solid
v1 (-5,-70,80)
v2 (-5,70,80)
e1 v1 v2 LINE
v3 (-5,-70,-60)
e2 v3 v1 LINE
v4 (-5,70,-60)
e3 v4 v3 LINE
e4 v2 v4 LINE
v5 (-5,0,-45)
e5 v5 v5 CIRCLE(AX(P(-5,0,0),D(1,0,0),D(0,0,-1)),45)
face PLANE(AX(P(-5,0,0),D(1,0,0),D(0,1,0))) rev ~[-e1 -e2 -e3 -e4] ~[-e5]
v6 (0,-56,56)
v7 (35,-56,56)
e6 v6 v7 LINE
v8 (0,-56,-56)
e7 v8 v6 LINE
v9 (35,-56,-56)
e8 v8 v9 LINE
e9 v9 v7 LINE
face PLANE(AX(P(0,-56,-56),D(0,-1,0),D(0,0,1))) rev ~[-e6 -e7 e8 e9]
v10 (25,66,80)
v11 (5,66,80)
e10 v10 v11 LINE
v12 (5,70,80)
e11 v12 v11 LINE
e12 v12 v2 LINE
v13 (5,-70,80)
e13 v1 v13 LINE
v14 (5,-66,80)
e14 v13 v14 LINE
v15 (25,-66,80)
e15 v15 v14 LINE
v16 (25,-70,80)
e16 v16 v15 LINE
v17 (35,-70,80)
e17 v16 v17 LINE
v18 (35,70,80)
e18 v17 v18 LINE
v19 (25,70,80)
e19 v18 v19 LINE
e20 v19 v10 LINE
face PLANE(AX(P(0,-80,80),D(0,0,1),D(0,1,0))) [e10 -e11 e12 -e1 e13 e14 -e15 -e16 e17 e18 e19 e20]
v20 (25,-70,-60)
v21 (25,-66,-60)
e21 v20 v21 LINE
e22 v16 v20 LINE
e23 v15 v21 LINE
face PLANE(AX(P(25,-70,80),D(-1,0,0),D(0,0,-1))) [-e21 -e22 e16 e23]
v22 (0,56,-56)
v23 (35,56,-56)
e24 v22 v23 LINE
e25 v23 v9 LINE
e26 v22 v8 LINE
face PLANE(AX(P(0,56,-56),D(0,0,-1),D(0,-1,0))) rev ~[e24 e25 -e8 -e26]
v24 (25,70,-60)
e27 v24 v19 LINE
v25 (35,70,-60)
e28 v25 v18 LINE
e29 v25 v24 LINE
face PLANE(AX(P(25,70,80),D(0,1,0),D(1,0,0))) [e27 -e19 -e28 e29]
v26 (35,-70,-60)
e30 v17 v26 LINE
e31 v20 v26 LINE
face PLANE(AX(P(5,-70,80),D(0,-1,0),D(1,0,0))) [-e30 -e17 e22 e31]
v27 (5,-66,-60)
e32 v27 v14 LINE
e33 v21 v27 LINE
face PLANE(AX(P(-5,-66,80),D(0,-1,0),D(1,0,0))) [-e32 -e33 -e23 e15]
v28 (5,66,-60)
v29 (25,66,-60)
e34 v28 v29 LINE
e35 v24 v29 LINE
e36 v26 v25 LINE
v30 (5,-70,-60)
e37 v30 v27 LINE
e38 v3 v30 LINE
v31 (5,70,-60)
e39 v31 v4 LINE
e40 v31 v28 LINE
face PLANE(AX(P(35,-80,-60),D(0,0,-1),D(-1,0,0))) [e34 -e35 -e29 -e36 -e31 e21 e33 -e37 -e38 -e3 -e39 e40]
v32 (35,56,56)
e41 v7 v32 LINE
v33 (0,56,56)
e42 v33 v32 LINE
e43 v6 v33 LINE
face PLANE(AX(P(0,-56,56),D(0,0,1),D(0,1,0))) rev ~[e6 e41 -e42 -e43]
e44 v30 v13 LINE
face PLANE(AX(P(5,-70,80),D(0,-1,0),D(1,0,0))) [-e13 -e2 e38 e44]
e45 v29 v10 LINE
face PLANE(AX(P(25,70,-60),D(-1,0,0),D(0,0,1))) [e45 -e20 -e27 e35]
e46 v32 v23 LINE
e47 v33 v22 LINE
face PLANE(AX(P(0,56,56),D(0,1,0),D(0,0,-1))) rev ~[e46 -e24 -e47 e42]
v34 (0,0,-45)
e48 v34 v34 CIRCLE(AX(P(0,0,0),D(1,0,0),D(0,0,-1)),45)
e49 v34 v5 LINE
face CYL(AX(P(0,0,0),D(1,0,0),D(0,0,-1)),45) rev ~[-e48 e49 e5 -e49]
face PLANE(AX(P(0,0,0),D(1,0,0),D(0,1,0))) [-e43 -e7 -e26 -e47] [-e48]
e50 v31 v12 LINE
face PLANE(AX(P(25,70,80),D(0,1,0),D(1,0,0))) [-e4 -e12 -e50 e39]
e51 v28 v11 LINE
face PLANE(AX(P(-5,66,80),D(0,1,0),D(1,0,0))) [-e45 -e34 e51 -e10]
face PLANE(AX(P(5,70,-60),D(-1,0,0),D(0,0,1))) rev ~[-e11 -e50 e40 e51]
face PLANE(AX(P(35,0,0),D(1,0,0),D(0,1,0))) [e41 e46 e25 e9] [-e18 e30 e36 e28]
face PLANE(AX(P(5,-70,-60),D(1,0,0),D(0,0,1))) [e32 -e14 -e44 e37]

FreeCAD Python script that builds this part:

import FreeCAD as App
import Part
import Sketcher

V = App.Vector

doc = App.newDocument("Part")
params = doc.addObject("Spreadsheet::Sheet", "Params")
for row, (alias, value) in enumerate([
    ("sketch1_width", "160 mm"),
    ("sketch1_width2", "112 mm"),
    ("pad1_length", "35 mm"),
    ("sketch2_width", "160 mm"),
    ("pad2_length", "5 mm"),
    ("sketch3_diameter", "90 mm"),
    ("sketch4_width", "20 mm"),
    ("sketch4_height", "10 mm"),
    ("sketch5_width", "40 mm"),
    ("sketch5_height", "160 mm"),
    ("pocket3_length", "20 mm"),
    ("sketch6_width", "40 mm"),
    ("sketch6_height", "140 mm"),
    ("pocket4_length", "10 mm"),
    ("sketch7_width", "40 mm"),
    ("sketch7_height", "140 mm"),
    ("pocket5_length", "10 mm"),
    ("sketch8_width", "20 mm"),
    ("sketch8_height", "140 mm"),
    ("pocket6_length", "4 mm"),
    ("sketch9_width", "20 mm"),
    ("sketch9_height", "140 mm"),
    ("pocket7_length", "4 mm"),
], start=1):
    params.set(f"A{row}", alias)
    params.set(f"B{row}", "=" + value)
    params.setAlias(f"B{row}", alias)

body = doc.addObject("PartDesign::Body", "Body")

sketch1 = body.newObject("Sketcher::SketchObject", "Sketch")
sketch1.AttachmentSupport = (doc.getObject("YZ_Plane"), [""])
sketch1.MapMode = "FlatFace"
sketch1.addGeometry(Part.LineSegment(V(80, 80, 0), V(-80, 80, 0)), False)
sketch1.addGeometry(Part.LineSegment(V(-80, 80, 0), V(-80, -80, 0)), False)
sketch1.addGeometry(Part.LineSegment(V(-80, -80, 0), V(80, -80, 0)), False)
sketch1.addGeometry(Part.LineSegment(V(80, -80, 0), V(80, 80, 0)), False)
sketch1.addGeometry(Part.LineSegment(V(-56, -56, 0), V(-56, 56, 0)), False)
sketch1.addGeometry(Part.LineSegment(V(-56, 56, 0), V(56, 56, 0)), False)
sketch1.addGeometry(Part.LineSegment(V(56, 56, 0), V(56, -56, 0)), False)
sketch1.addGeometry(Part.LineSegment(V(56, -56, 0), V(-56, -56, 0)), False)
sketch1.addConstraint(Sketcher.Constraint("Coincident", 0, 2, 1, 1))
sketch1.addConstraint(Sketcher.Constraint("Coincident", 1, 2, 2, 1))
sketch1.addConstraint(Sketcher.Constraint("Coincident", 2, 2, 3, 1))
sketch1.addConstraint(Sketcher.Constraint("Coincident", 3, 2, 0, 1))
sketch1.addConstraint(Sketcher.Constraint("Coincident", 4, 2, 5, 1))
sketch1.addConstraint(Sketcher.Constraint("Coincident", 5, 2, 6, 1))
sketch1.addConstraint(Sketcher.Constraint("Coincident", 6, 2, 7, 1))
sketch1.addConstraint(Sketcher.Constraint("Coincident", 7, 2, 4, 1))
sketch1.addConstraint(Sketcher.Constraint("Horizontal", 0))
sketch1.addConstraint(Sketcher.Constraint("Vertical", 1))
sketch1.addConstraint(Sketcher.Constraint("Horizontal", 2))
sketch1.addConstraint(Sketcher.Constraint("Vertical", 3))
sketch1.addConstraint(Sketcher.Constraint("Vertical", 4))
sketch1.addConstraint(Sketcher.Constraint("Horizontal", 5))
sketch1.addConstraint(Sketcher.Constraint("Vertical", 6))
sketch1.addConstraint(Sketcher.Constraint("Horizontal", 7))
sketch1.addConstraint(Sketcher.Constraint("Symmetric", 0, 2, 2, 2, -1, 1))
sketch1.addConstraint(Sketcher.Constraint("Symmetric", 4, 2, 6, 2, -1, 1))
sketch1.addConstraint(Sketcher.Constraint("Equal", 2, 1))
sketch1.addConstraint(Sketcher.Constraint("Equal", 7, 4))
sketch1.addConstraint(Sketcher.Constraint("DistanceX", 0, 2, 0, 1, 160.0))
sketch1.addConstraint(Sketcher.Constraint("DistanceX", 5, 1, 5, 2, 112.0))
sketch1.setExpression("Constraints[20]", "Params.sketch1_width")
sketch1.setExpression("Constraints[21]", "Params.sketch1_width2")
pad1 = body.newObject("PartDesign::Pad", "Pad")
pad1.Profile = sketch1
pad1.setExpression("Length", "Params.pad1_length")

sketch2 = body.newObject("Sketcher::SketchObject", "Sketch001")
sketch2.AttachmentSupport = (doc.getObject("YZ_Plane"), [""])
sketch2.MapMode = "FlatFace"
sketch2.addGeometry(Part.LineSegment(V(80, 80, 0), V(-80, 80, 0)), False)
sketch2.addGeometry(Part.LineSegment(V(-80, 80, 0), V(-80, -80, 0)), False)
sketch2.addGeometry(Part.LineSegment(V(-80, -80, 0), V(80, -80, 0)), False)
sketch2.addGeometry(Part.LineSegment(V(80, -80, 0), V(80, 80, 0)), False)
sketch2.addConstraint(Sketcher.Constraint("Coincident", 0, 2, 1, 1))
sketch2.addConstraint(Sketcher.Constraint("Coincident", 1, 2, 2, 1))
sketch2.addConstraint(Sketcher.Constraint("Coincident", 2, 2, 3, 1))
sketch2.addConstraint(Sketcher.Constraint("Coincident", 3, 2, 0, 1))
sketch2.addConstraint(Sketcher.Constraint("Horizontal", 0))
sketch2.addConstraint(Sketcher.Constraint("Vertical", 1))
sketch2.addConstraint(Sketcher.Constraint("Horizontal", 2))
sketch2.addConstraint(Sketcher.Constraint("Vertical", 3))
sketch2.addConstraint(Sketcher.Constraint("Symmetric", 0, 2, 2, 2, -1, 1))
sketch2.addConstraint(Sketcher.Constraint("Equal", 2, 1))
sketch2.addConstraint(Sketcher.Constraint("DistanceX", 0, 2, 0, 1, 160.0))
sketch2.setExpression("Constraints[10]", "Params.sketch2_width")
pad2 = body.newObject("PartDesign::Pad", "Pad001")
pad2.Profile = sketch2
pad2.setExpression("Length", "Params.pad2_length")
pad2.Reversed = True

sketch3 = body.newObject("Sketcher::SketchObject", "Sketch002")
sketch3.AttachmentSupport = (doc.getObject("YZ_Plane"), [""])
sketch3.MapMode = "FlatFace"
sketch3.addGeometry(Part.Circle(V(0, 0, 0), V(0, 0, 1), 45), False)
sketch3.addConstraint(Sketcher.Constraint("Coincident", 0, 3, -1, 1))
sketch3.addConstraint(Sketcher.Constraint("Diameter", 0, 90.0))
sketch3.setExpression("Constraints[1]", "Params.sketch3_diameter")
pocket1 = body.newObject("PartDesign::Pocket", "Pocket")
pocket1.Profile = sketch3
pocket1.Type = "ThroughAll"

sketch4 = body.newObject("Sketcher::SketchObject", "Sketch003")
sketch4.AttachmentSupport = (doc.getObject("XY_Plane"), [""])
sketch4.MapMode = "FlatFace"
sketch4.AttachmentOffset = App.Placement(V(0, 0, 80), App.Rotation())
sketch4.addGeometry(Part.LineSegment(V(25, 70, 0), V(25, 80, 0)), False)
sketch4.addGeometry(Part.LineSegment(V(25, 80, 0), V(5, 80, 0)), False)
sketch4.addGeometry(Part.LineSegment(V(5, 80, 0), V(5, 70, 0)), False)
sketch4.addGeometry(Part.LineSegment(V(5, 70, 0), V(25, 70, 0)), False)
sketch4.addGeometry(Part.LineSegment(V(5, -70, 0), V(5, -80, 0)), False)
sketch4.addGeometry(Part.LineSegment(V(5, -80, 0), V(25, -80, 0)), False)
sketch4.addGeometry(Part.LineSegment(V(25, -80, 0), V(25, -70, 0)), False)
sketch4.addGeometry(Part.LineSegment(V(25, -70, 0), V(5, -70, 0)), False)
sketch4.addConstraint(Sketcher.Constraint("Coincident", 0, 2, 1, 1))
sketch4.addConstraint(Sketcher.Constraint("Coincident", 1, 2, 2, 1))
sketch4.addConstraint(Sketcher.Constraint("Coincident", 2, 2, 3, 1))
sketch4.addConstraint(Sketcher.Constraint("Coincident", 3, 2, 0, 1))
sketch4.addConstraint(Sketcher.Constraint("Coincident", 4, 2, 5, 1))
sketch4.addConstraint(Sketcher.Constraint("Coincident", 5, 2, 6, 1))
sketch4.addConstraint(Sketcher.Constraint("Coincident", 6, 2, 7, 1))
sketch4.addConstraint(Sketcher.Constraint("Coincident", 7, 2, 4, 1))
sketch4.addConstraint(Sketcher.Constraint("Vertical", 0))
sketch4.addConstraint(Sketcher.Constraint("Horizontal", 1))
sketch4.addConstraint(Sketcher.Constraint("Vertical", 2))
sketch4.addConstraint(Sketcher.Constraint("Horizontal", 3))
sketch4.addConstraint(Sketcher.Constraint("Vertical", 4))
sketch4.addConstraint(Sketcher.Constraint("Horizontal", 5))
sketch4.addConstraint(Sketcher.Constraint("Vertical", 6))
sketch4.addConstraint(Sketcher.Constraint("Horizontal", 7))
sketch4.addConstraint(Sketcher.Constraint("Symmetric", 1, 2, 4, 2, -1))
sketch4.addConstraint(Sketcher.Constraint("Symmetric", 3, 2, 6, 2, -1))
sketch4.addConstraint(Sketcher.Constraint("DistanceX", 1, 2, 1, 1, 20.0))
sketch4.addConstraint(Sketcher.Constraint("DistanceY", 0, 1, 0, 2, 10.0))
sketch4.addConstraint(Sketcher.Constraint("DistanceX", -1, 1, 0, 2, 25.0))
sketch4.addConstraint(Sketcher.Constraint("DistanceY", -1, 1, 0, 2, 80.0))
sketch4.setExpression("Constraints[18]", "Params.sketch4_width")
sketch4.setExpression("Constraints[19]", "Params.sketch4_height")
pocket2 = body.newObject("PartDesign::Pocket", "Pocket001")
pocket2.Profile = sketch4
pocket2.Type = "ThroughAll"

sketch5 = body.newObject("Sketcher::SketchObject", "Sketch004")
sketch5.AttachmentSupport = (doc.getObject("XY_Plane"), [""])
sketch5.MapMode = "FlatFace"
sketch5.AttachmentOffset = App.Placement(V(0, 0, -80), App.Rotation())
sketch5.addGeometry(Part.LineSegment(V(35, 80, 0), V(35, -80, 0)), False)
sketch5.addGeometry(Part.LineSegment(V(35, -80, 0), V(-5, -80, 0)), False)
sketch5.addGeometry(Part.LineSegment(V(-5, -80, 0), V(-5, 80, 0)), False)
sketch5.addGeometry(Part.LineSegment(V(-5, 80, 0), V(35, 80, 0)), False)
sketch5.addConstraint(Sketcher.Constraint("Coincident", 0, 2, 1, 1))
sketch5.addConstraint(Sketcher.Constraint("Coincident", 1, 2, 2, 1))
sketch5.addConstraint(Sketcher.Constraint("Coincident", 2, 2, 3, 1))
sketch5.addConstraint(Sketcher.Constraint("Coincident", 3, 2, 0, 1))
sketch5.addConstraint(Sketcher.Constraint("Vertical", 0))
sketch5.addConstraint(Sketcher.Constraint("Horizontal", 1))
sketch5.addConstraint(Sketcher.Constraint("Vertical", 2))
sketch5.addConstraint(Sketcher.Constraint("Horizontal", 3))
sketch5.addConstraint(Sketcher.Constraint("DistanceX", 1, 2, 1, 1, 40.0))
sketch5.addConstraint(Sketcher.Constraint("DistanceY", 0, 2, 0, 1, 160.0))
sketch5.addConstraint(Sketcher.Constraint("DistanceX", -1, 1, 0, 2, 35.0))
sketch5.addConstraint(Sketcher.Constraint("DistanceY", 0, 2, -1, 1, 80.0))
sketch5.setExpression("Constraints[8]", "Params.sketch5_width")
sketch5.setExpression("Constraints[9]", "Params.sketch5_height")
pocket3 = body.newObject("PartDesign::Pocket", "Pocket002")
pocket3.Profile = sketch5
pocket3.setExpression("Length", "Params.pocket3_length")
pocket3.Reversed = True

sketch6 = body.newObject("Sketcher::SketchObject", "Sketch005")
sketch6.AttachmentSupport = (doc.getObject("XZ_Plane"), [""])
sketch6.MapMode = "FlatFace"
sketch6.AttachmentOffset = App.Placement(V(0, 0, 80), App.Rotation())
sketch6.addGeometry(Part.LineSegment(V(-5, 80, 0), V(-5, -60, 0)), False)
sketch6.addGeometry(Part.LineSegment(V(-5, -60, 0), V(35, -60, 0)), False)
sketch6.addGeometry(Part.LineSegment(V(35, -60, 0), V(35, 80, 0)), False)
sketch6.addGeometry(Part.LineSegment(V(35, 80, 0), V(-5, 80, 0)), False)
sketch6.addConstraint(Sketcher.Constraint("Coincident", 0, 2, 1, 1))
sketch6.addConstraint(Sketcher.Constraint("Coincident", 1, 2, 2, 1))
sketch6.addConstraint(Sketcher.Constraint("Coincident", 2, 2, 3, 1))
sketch6.addConstraint(Sketcher.Constraint("Coincident", 3, 2, 0, 1))
sketch6.addConstraint(Sketcher.Constraint("Vertical", 0))
sketch6.addConstraint(Sketcher.Constraint("Horizontal", 1))
sketch6.addConstraint(Sketcher.Constraint("Vertical", 2))
sketch6.addConstraint(Sketcher.Constraint("Horizontal", 3))
sketch6.addConstraint(Sketcher.Constraint("DistanceX", 1, 1, 1, 2, 40.0))
sketch6.addConstraint(Sketcher.Constraint("DistanceY", 0, 2, 0, 1, 140.0))
sketch6.addConstraint(Sketcher.Constraint("DistanceX", 0, 2, -1, 1, 5.0))
sketch6.addConstraint(Sketcher.Constraint("DistanceY", 0, 2, -1, 1, 60.0))
sketch6.setExpression("Constraints[8]", "Params.sketch6_width")
sketch6.setExpression("Constraints[9]", "Params.sketch6_height")
pocket4 = body.newObject("PartDesign::Pocket", "Pocket003")
pocket4.Profile = sketch6
pocket4.setExpression("Length", "Params.pocket4_length")

sketch7 = body.newObject("Sketcher::SketchObject", "Sketch006")
sketch7.AttachmentSupport = (doc.getObject("XZ_Plane"), [""])
sketch7.MapMode = "FlatFace"
sketch7.AttachmentOffset = App.Placement(V(0, 0, -80), App.Rotation())
sketch7.addGeometry(Part.LineSegment(V(-5, 80, 0), V(35, 80, 0)), False)
sketch7.addGeometry(Part.LineSegment(V(35, 80, 0), V(35, -60, 0)), False)
sketch7.addGeometry(Part.LineSegment(V(35, -60, 0), V(-5, -60, 0)), False)
sketch7.addGeometry(Part.LineSegment(V(-5, -60, 0), V(-5, 80, 0)), False)
sketch7.addConstraint(Sketcher.Constraint("Coincident", 0, 2, 1, 1))
sketch7.addConstraint(Sketcher.Constraint("Coincident", 1, 2, 2, 1))
sketch7.addConstraint(Sketcher.Constraint("Coincident", 2, 2, 3, 1))
sketch7.addConstraint(Sketcher.Constraint("Coincident", 3, 2, 0, 1))
sketch7.addConstraint(Sketcher.Constraint("Horizontal", 0))
sketch7.addConstraint(Sketcher.Constraint("Vertical", 1))
sketch7.addConstraint(Sketcher.Constraint("Horizontal", 2))
sketch7.addConstraint(Sketcher.Constraint("Vertical", 3))
sketch7.addConstraint(Sketcher.Constraint("DistanceX", 0, 1, 0, 2, 40.0))
sketch7.addConstraint(Sketcher.Constraint("DistanceY", 1, 2, 1, 1, 140.0))
sketch7.addConstraint(Sketcher.Constraint("DistanceX", -1, 1, 0, 2, 35.0))
sketch7.addConstraint(Sketcher.Constraint("DistanceY", -1, 1, 0, 2, 80.0))
sketch7.setExpression("Constraints[8]", "Params.sketch7_width")
sketch7.setExpression("Constraints[9]", "Params.sketch7_height")
pocket5 = body.newObject("PartDesign::Pocket", "Pocket004")
pocket5.Profile = sketch7
pocket5.setExpression("Length", "Params.pocket5_length")
pocket5.Reversed = True

sketch8 = body.newObject("Sketcher::SketchObject", "Sketch007")
sketch8.AttachmentSupport = (doc.getObject("XZ_Plane"), [""])
sketch8.MapMode = "FlatFace"
sketch8.AttachmentOffset = App.Placement(V(0, 0, 70), App.Rotation())
sketch8.addGeometry(Part.LineSegment(V(25, -60, 0), V(25, 80, 0)), False)
sketch8.addGeometry(Part.LineSegment(V(25, 80, 0), V(5, 80, 0)), False)
sketch8.addGeometry(Part.LineSegment(V(5, 80, 0), V(5, -60, 0)), False)
sketch8.addGeometry(Part.LineSegment(V(5, -60, 0), V(25, -60, 0)), False)
sketch8.addConstraint(Sketcher.Constraint("Coincident", 0, 2, 1, 1))
sketch8.addConstraint(Sketcher.Constraint("Coincident", 1, 2, 2, 1))
sketch8.addConstraint(Sketcher.Constraint("Coincident", 2, 2, 3, 1))
sketch8.addConstraint(Sketcher.Constraint("Coincident", 3, 2, 0, 1))
sketch8.addConstraint(Sketcher.Constraint("Vertical", 0))
sketch8.addConstraint(Sketcher.Constraint("Horizontal", 1))
sketch8.addConstraint(Sketcher.Constraint("Vertical", 2))
sketch8.addConstraint(Sketcher.Constraint("Horizontal", 3))
sketch8.addConstraint(Sketcher.Constraint("DistanceX", 1, 2, 1, 1, 20.0))
sketch8.addConstraint(Sketcher.Constraint("DistanceY", 0, 1, 0, 2, 140.0))
sketch8.addConstraint(Sketcher.Constraint("DistanceX", -1, 1, 0, 2, 25.0))
sketch8.addConstraint(Sketcher.Constraint("DistanceY", -1, 1, 0, 2, 80.0))
sketch8.setExpression("Constraints[8]", "Params.sketch8_width")
sketch8.setExpression("Constraints[9]", "Params.sketch8_height")
pocket6 = body.newObject("PartDesign::Pocket", "Pocket005")
pocket6.Profile = sketch8
pocket6.setExpression("Length", "Params.pocket6_length")

sketch9 = body.newObject("Sketcher::SketchObject", "Sketch008")
sketch9.AttachmentSupport = (doc.getObject("XZ_Plane"), [""])
sketch9.MapMode = "FlatFace"
sketch9.AttachmentOffset = App.Placement(V(0, 0, -70), App.Rotation())
sketch9.addGeometry(Part.LineSegment(V(25, -60, 0), V(5, -60, 0)), False)
sketch9.addGeometry(Part.LineSegment(V(5, -60, 0), V(5, 80, 0)), False)
sketch9.addGeometry(Part.LineSegment(V(5, 80, 0), V(25, 80, 0)), False)
sketch9.addGeometry(Part.LineSegment(V(25, 80, 0), V(25, -60, 0)), False)
sketch9.addConstraint(Sketcher.Constraint("Coincident", 0, 2, 1, 1))
sketch9.addConstraint(Sketcher.Constraint("Coincident", 1, 2, 2, 1))
sketch9.addConstraint(Sketcher.Constraint("Coincident", 2, 2, 3, 1))
sketch9.addConstraint(Sketcher.Constraint("Coincident", 3, 2, 0, 1))
sketch9.addConstraint(Sketcher.Constraint("Horizontal", 0))
sketch9.addConstraint(Sketcher.Constraint("Vertical", 1))
sketch9.addConstraint(Sketcher.Constraint("Horizontal", 2))
sketch9.addConstraint(Sketcher.Constraint("Vertical", 3))
sketch9.addConstraint(Sketcher.Constraint("DistanceX", 0, 2, 0, 1, 20.0))
sketch9.addConstraint(Sketcher.Constraint("DistanceY", 1, 1, 1, 2, 140.0))
sketch9.addConstraint(Sketcher.Constraint("DistanceX", -1, 1, 0, 2, 5.0))
sketch9.addConstraint(Sketcher.Constraint("DistanceY", 0, 2, -1, 1, 60.0))
sketch9.setExpression("Constraints[8]", "Params.sketch9_width")
sketch9.setExpression("Constraints[9]", "Params.sketch9_height")
pocket7 = body.newObject("PartDesign::Pocket", "Pocket006")
pocket7.Profile = sketch9
pocket7.setExpression("Length", "Params.pocket7_length")
pocket7.Reversed = True

doc.recompute()
